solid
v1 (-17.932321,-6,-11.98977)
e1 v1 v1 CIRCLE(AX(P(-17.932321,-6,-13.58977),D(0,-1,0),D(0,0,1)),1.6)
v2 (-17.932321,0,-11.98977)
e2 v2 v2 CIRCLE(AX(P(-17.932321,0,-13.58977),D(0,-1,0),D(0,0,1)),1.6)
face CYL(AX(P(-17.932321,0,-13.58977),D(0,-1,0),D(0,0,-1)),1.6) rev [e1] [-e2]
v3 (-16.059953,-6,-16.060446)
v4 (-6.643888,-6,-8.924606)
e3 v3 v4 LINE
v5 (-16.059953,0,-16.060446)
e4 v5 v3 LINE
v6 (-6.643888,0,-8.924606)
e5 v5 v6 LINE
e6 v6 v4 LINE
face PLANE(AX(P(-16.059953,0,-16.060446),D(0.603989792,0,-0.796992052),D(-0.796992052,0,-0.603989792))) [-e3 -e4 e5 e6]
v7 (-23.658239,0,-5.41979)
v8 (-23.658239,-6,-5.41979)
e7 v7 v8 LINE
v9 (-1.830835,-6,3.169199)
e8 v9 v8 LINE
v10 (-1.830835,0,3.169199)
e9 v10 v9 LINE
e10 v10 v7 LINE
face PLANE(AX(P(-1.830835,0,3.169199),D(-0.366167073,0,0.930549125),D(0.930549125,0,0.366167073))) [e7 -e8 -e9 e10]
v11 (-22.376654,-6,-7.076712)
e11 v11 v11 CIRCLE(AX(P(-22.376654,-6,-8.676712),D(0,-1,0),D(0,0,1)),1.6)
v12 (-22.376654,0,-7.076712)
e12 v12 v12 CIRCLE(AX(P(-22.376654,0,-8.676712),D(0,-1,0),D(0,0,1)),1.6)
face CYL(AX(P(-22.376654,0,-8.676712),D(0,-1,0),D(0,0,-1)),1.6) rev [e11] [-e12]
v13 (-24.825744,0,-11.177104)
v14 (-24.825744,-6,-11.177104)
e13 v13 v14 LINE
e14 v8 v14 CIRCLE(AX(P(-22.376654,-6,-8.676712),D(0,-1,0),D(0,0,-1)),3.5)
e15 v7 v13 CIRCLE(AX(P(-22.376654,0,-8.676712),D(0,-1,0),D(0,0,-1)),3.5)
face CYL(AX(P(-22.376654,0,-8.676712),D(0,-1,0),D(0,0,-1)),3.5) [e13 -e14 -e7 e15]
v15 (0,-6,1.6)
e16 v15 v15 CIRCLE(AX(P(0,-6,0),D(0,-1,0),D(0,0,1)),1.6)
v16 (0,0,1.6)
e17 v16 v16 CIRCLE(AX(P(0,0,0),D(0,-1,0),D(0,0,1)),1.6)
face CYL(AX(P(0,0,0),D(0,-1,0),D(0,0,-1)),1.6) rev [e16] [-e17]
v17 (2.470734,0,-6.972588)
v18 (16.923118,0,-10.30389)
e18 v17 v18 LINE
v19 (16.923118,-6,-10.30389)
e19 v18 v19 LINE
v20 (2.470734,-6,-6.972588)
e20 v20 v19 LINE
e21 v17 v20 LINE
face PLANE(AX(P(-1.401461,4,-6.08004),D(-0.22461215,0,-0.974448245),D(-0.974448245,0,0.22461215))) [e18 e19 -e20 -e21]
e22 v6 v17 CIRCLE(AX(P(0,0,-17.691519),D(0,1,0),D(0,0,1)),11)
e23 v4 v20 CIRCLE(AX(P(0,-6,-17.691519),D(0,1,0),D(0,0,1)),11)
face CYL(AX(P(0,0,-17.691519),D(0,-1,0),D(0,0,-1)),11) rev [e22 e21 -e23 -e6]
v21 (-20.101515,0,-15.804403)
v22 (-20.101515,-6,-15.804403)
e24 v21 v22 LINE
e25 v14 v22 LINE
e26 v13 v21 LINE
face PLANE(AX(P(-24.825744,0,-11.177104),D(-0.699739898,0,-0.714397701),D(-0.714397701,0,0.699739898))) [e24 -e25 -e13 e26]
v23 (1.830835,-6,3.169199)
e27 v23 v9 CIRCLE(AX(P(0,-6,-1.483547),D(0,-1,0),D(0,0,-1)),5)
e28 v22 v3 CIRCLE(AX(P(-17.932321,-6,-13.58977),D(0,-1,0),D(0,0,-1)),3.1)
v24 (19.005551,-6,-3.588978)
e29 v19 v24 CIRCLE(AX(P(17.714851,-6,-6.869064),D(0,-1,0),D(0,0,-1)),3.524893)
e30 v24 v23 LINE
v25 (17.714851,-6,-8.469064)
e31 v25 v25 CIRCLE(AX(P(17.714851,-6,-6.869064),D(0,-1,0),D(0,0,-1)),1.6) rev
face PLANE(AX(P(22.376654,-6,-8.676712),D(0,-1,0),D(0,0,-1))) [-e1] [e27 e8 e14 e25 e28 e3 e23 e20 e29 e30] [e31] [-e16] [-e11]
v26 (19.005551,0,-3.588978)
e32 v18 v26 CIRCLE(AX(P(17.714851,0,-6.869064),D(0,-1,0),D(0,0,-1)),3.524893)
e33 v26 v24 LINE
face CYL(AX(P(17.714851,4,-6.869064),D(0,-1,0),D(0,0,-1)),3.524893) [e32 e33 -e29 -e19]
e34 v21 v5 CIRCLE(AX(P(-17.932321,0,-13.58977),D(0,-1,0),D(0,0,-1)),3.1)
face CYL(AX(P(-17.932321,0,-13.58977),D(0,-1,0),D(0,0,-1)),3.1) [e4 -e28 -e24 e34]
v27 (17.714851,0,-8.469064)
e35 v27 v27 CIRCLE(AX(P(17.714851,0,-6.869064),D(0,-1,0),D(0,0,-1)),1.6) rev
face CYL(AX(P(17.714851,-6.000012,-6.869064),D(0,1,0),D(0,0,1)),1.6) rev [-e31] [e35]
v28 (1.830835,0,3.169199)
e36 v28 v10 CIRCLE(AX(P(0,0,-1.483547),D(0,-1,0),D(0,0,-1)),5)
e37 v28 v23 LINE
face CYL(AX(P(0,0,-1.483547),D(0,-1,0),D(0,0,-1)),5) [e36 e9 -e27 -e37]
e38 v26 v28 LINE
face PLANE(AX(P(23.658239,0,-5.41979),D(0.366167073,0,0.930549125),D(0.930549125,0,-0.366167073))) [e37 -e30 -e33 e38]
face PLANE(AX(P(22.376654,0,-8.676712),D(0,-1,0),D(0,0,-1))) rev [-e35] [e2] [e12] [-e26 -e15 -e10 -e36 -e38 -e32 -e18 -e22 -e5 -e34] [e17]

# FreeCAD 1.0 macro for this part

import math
import FreeCAD as App
import Part
import Sketcher
from FreeCAD import Vector
Q = App.Units.Quantity

doc = App.newDocument("Part")
body = doc.addObject("PartDesign::Body", "Body")

sketch1 = body.newObject("Sketcher::SketchObject", "Sketch")
sketch1.AttachmentSupport = (doc.getObject("XZ_Plane"), [""])
sketch1.MapMode = "FlatFace"
sketch1.AttachmentOffset = App.Placement(Vector(0, 0, 6), App.Rotation())
sketch1.addGeometry(Part.LineSegment(Vector(23.7, -5.4, 0), Vector(1.8, 3.2, 0)), False)
sketch1.addGeometry(Part.ArcOfCircle(Part.Circle(Vector(0, -1.5, 0), Vector(0, 0, 1), 5), math.radians(69), math.radians(111)), False)
sketch1.addGeometry(Part.LineSegment(Vector(-1.8, 3.2, 0), Vector(-23.7, -5.4, 0)), False)
sketch1.addGeometry(Part.ArcOfCircle(Part.Circle(Vector(-22.4, -8.7, 0), Vector(0, 0, 1), 3.5), math.radians(111), math.radians(226)), False)
sketch1.addGeometry(Part.LineSegment(Vector(-24.8, -11.2, 0), Vector(-20.1, -15.8, 0)), False)
sketch1.addGeometry(Part.ArcOfCircle(Part.Circle(Vector(-17.9, -13.6, 0), Vector(0, 0, 1), 3.1), math.radians(-134), math.radians(-53)), False)
sketch1.addGeometry(Part.LineSegment(Vector(-16.1, -16.1, 0), Vector(-6.6, -8.9, 0)), False)
sketch1.addGeometry(Part.ArcOfCircle(Part.Circle(Vector(0, -17.7, 0), Vector(0, 0, 1), 11), math.radians(53), math.radians(127)), False)
sketch1.addGeometry(Part.LineSegment(Vector(6.6, -8.9, 0), Vector(16.1, -16.1, 0)), False)
sketch1.addGeometry(Part.ArcOfCircle(Part.Circle(Vector(17.9, -13.6, 0), Vector(0, 0, 1), 3.1), math.radians(-127), math.radians(-46)), False)
sketch1.addGeometry(Part.LineSegment(Vector(20.1, -15.8, 0), Vector(24.8, -11.2, 0)), False)
sketch1.addGeometry(Part.ArcOfCircle(Part.Circle(Vector(22.4, -8.7, 0), Vector(0, 0, 1), 3.5), math.radians(-46), math.radians(69)), False)
sketch1.addGeometry(Part.Circle(Vector(-17.9, -13.6, 0), Vector(0, 0, 1), 1.6), False)
sketch1.addGeometry(Part.Circle(Vector(-22.4, -8.7, 0), Vector(0, 0, 1), 1.6), False)
sketch1.addGeometry(Part.Circle(Vector(17.9, -13.6, 0), Vector(0, 0, 1), 1.6), False)
sketch1.addGeometry(Part.Circle(Vector(22.4, -8.7, 0), Vector(0, 0, 1), 1.6), False)
sketch1.addGeometry(Part.Circle(Vector(0, 0, 0), Vector(0, 0, 1), 1.6), False)
sketch1.addConstraint(Sketcher.Constraint("Tangent", 0, 2, 1, 1))
sketch1.addConstraint(Sketcher.Constraint("Tangent", 1, 2, 2, 1))
sketch1.addConstraint(Sketcher.Constraint("Tangent", 2, 2, 3, 1))
sketch1.addConstraint(Sketcher.Constraint("Tangent", 3, 2, 4, 1))
sketch1.addConstraint(Sketcher.Constraint("Tangent", 4, 2, 5, 1))
sketch1.addConstraint(Sketcher.Constraint("Tangent", 5, 2, 6, 1))
sketch1.addConstraint(Sketcher.Constraint("Tangent", 6, 2, 7, 2))
sketch1.addConstraint(Sketcher.Constraint("Tangent", 7, 1, 8, 1))
sketch1.addConstraint(Sketcher.Constraint("Tangent", 8, 2, 9, 1))
sketch1.addConstraint(Sketcher.Constraint("Tangent", 9, 2, 10, 1))
sketch1.addConstraint(Sketcher.Constraint("Tangent", 10, 2, 11, 1))
sketch1.addConstraint(Sketcher.Constraint("Tangent", 11, 2, 0, 1))
sketch1.addConstraint(Sketcher.Constraint("Coincident", 16, 3, -1, 1))
sketch1.addConstraint(Sketcher.Constraint("Coincident", 12, 3, 5, 3))
sketch1.addConstraint(Sketcher.Constraint("Coincident", 13, 3, 3, 3))
sketch1.addConstraint(Sketcher.Constraint("Coincident", 14, 3, 9, 3))
sketch1.addConstraint(Sketcher.Constraint("Coincident", 15, 3, 11, 3))
sketch1.addConstraint(Sketcher.Constraint("Equal", 5, 9))
sketch1.addConstraint(Sketcher.Constraint("Equal", 3, 11))
sketch1.addConstraint(Sketcher.Constraint("Equal", 12, 13))
sketch1.addConstraint(Sketcher.Constraint("Equal", 13, 14))
sketch1.addConstraint(Sketcher.Constraint("Equal", 14, 15))
sketch1.addConstraint(Sketcher.Constraint("Equal", 15, 16))
sketch1.addConstraint(Sketcher.Constraint("Symmetric", 5, 3, 9, 3, -2))
sketch1.addConstraint(Sketcher.Constraint("Symmetric", 3, 3, 11, 3, -2))
sketch1.addConstraint(Sketcher.Constraint("PointOnObject", 1, 3, -2))
sketch1.addConstraint(Sketcher.Constraint("PointOnObject", 7, 3, -2))
sketch1.addConstraint(Sketcher.Constraint("Radius", 1, Q("5 mm")))
sketch1.addConstraint(Sketcher.Constraint("Radius", 7, Q("11 mm")))
sketch1.addConstraint(Sketcher.Constraint("Diameter", 12, Q("3.2 mm")))
sketch1.addConstraint(Sketcher.Constraint("Radius", 3, Q("3.5 mm")))
sketch1.addConstraint(Sketcher.Constraint("Radius", 5, Q("3.1 mm")))
sketch1.addConstraint(Sketcher.Constraint("DistanceY", -1, 1, 0, 2, Q("3.169199 mm")))
sketch1.addConstraint(Sketcher.Constraint("DistanceY", 4, 2, 3, 2, Q("4.627299 mm")))
sketch1.addConstraint(Sketcher.Constraint("DistanceX", 3, 3, 5, 2, Q("6.316702 mm")))
sketch1.addConstraint(Sketcher.Constraint("DistanceX", 5, 3, -1, 1, Q("17.932321 mm")))
sketch1.addConstraint(Sketcher.Constraint("DistanceY", 5, 3, -1, 1, Q("13.58977 mm")))
sketch1.addConstraint(Sketcher.Constraint("DistanceY", 7, 3, -1, 1, Q("17.691519 mm")))
pad1 = body.newObject("PartDesign::Pad", "Pad")
pad1.Profile = sketch1
pad1.Length = 6
pad1.Reversed = True

sketch2 = body.newObject("Sketcher::SketchObject", "Sketch001")
sketch2.AttachmentSupport = (doc.getObject("XZ_Plane"), [""])
sketch2.MapMode = "FlatFace"
sketch2.AttachmentOffset = App.Placement(Vector(0, 0, 6), App.Rotation())
sketch2.addGeometry(Part.Circle(Vector(17.9, -13.6, 0), Vector(0, 0, 1), 1.6), False)
sketch2.addGeometry(Part.Circle(Vector(22.4, -8.7, 0), Vector(0, 0, 1), 1.6), False)
sketch2.addConstraint(Sketcher.Constraint("Equal", 0, 1))
sketch2.addConstraint(Sketcher.Constraint("Diameter", 0, Q("3.2 mm")))
sketch2.addConstraint(Sketcher.Constraint("DistanceX", -1, 1, 0, 3, Q("17.932321 mm")))
sketch2.addConstraint(Sketcher.Constraint("DistanceY", 0, 3, -1, 1, Q("13.58977 mm")))
sketch2.addConstraint(Sketcher.Constraint("DistanceX", -1, 1, 1, 3, Q("22.376654 mm")))
sketch2.addConstraint(Sketcher.Constraint("DistanceY", 1, 3, -1, 1, Q("8.676712 mm")))
pad2 = body.newObject("PartDesign::Pad", "Pad001")
pad2.Profile = sketch2
pad2.Length = 6
pad2.Reversed = True

sketch3 = body.newObject("Sketcher::SketchObject", "Sketch002")
sketch3.AttachmentSupport = (doc.getObject("XZ_Plane"), [""])
sketch3.MapMode = "FlatFace"
sketch3.AttachmentOffset = App.Placement(Vector(0, 0, 6), App.Rotation())
sketch3.addGeometry(Part.LineSegment(Vector(16.9, -10.3, 0), Vector(2.5, -7, 0)), False)
sketch3.addGeometry(Part.ArcOfCircle(Part.Circle(Vector(0, -17.7, 0), Vector(0, 0, 1), 11), math.radians(53), math.radians(77)), False)
sketch3.addGeometry(Part.LineSegment(Vector(6.6, -8.9, 0), Vector(16.1, -16.1, 0)), False)
sketch3.addGeometry(Part.ArcOfCircle(Part.Circle(Vector(17.9, -13.6, 0), Vector(0, 0, 1), 3.1), math.radians(-127), math.radians(-46)), False)
sketch3.addGeometry(Part.LineSegment(Vector(20.1, -15.8, 0), Vector(24.8, -11.2, 0)), False)
sketch3.addGeometry(Part.ArcOfCircle(Part.Circle(Vector(22.4, -8.7, 0), Vector(0, 0, 1), 3.5), math.radians(-46), math.radians(69)), False)
sketch3.addGeometry(Part.LineSegment(Vector(23.7, -5.4, 0), Vector(19, -3.6, 0)), False)
sketch3.addGeometry(Part.ArcOfCircle(Part.Circle(Vector(17.7, -6.9, 0), Vector(0, 0, 1), 3.5), math.radians(-103), math.radians(69)), False)
sketch3.addGeometry(Part.Circle(Vector(17.7, -6.9, 0), Vector(0, 0, 1), 1.6), False)
sketch3.addConstraint(Sketcher.Constraint("Tangent", 0, 2, 1, 2))
sketch3.addConstraint(Sketcher.Constraint("Tangent", 1, 1, 2, 1))
sketch3.addConstraint(Sketcher.Constraint("Tangent", 2, 2, 3, 1))
sketch3.addConstraint(Sketcher.Constraint("Tangent", 3, 2, 4, 1))
sketch3.addConstraint(Sketcher.Constraint("Tangent", 4, 2, 5, 1))
sketch3.addConstraint(Sketcher.Constraint("Tangent", 5, 2, 6, 1))
sketch3.addConstraint(Sketcher.Constraint("Tangent", 6, 2, 7, 2))
sketch3.addConstraint(Sketcher.Constraint("Tangent", 7, 1, 0, 1))
sketch3.addConstraint(Sketcher.Constraint("Coincident", 8, 3, 7, 3))
sketch3.addConstraint(Sketcher.Constraint("PointOnObject", 1, 3, -2))
sketch3.addConstraint(Sketcher.Constraint("Radius", 1, Q("11 mm")))
sketch3.addConstraint(Sketcher.Constraint("Diameter", 8, Q("3.2 mm")))
sketch3.addConstraint(Sketcher.Constraint("Radius", 3, Q("3.1 mm")))
sketch3.addConstraint(Sketcher.Constraint("Radius", 5, Q("3.5 mm")))
sketch3.addConstraint(Sketcher.Constraint("Radius", 7, Q("3.524893 mm")))
sketch3.addConstraint(Sketcher.Constraint("DistanceX", 2, 2, 7, 3, Q("1.654899 mm")))
sketch3.addConstraint(Sketcher.Constraint("DistanceX", 2, 2, 5, 3, Q("6.316702 mm")))
sketch3.addConstraint(Sketcher.Constraint("DistanceY", 3, 2, 4, 2, Q("4.627299 mm")))
sketch3.addConstraint(Sketcher.Constraint("DistanceX", 7, 3, 6, 2, Q("1.2907 mm")))
sketch3.addConstraint(Sketcher.Constraint("Distance", 0, Q("14.831351 mm")))
sketch3.addConstraint(Sketcher.Constraint("DistanceY", 1, 3, -1, 1, Q("17.691519 mm")))
sketch3.addConstraint(Sketcher.Constraint("DistanceX", -1, 1, 3, 3, Q("17.932321 mm")))
pocket1 = body.newObject("PartDesign::Pocket", "Pocket")
pocket1.Profile = sketch3
pocket1.Type = "ThroughAll"
pocket1.Midplane = True

doc.recompute()
